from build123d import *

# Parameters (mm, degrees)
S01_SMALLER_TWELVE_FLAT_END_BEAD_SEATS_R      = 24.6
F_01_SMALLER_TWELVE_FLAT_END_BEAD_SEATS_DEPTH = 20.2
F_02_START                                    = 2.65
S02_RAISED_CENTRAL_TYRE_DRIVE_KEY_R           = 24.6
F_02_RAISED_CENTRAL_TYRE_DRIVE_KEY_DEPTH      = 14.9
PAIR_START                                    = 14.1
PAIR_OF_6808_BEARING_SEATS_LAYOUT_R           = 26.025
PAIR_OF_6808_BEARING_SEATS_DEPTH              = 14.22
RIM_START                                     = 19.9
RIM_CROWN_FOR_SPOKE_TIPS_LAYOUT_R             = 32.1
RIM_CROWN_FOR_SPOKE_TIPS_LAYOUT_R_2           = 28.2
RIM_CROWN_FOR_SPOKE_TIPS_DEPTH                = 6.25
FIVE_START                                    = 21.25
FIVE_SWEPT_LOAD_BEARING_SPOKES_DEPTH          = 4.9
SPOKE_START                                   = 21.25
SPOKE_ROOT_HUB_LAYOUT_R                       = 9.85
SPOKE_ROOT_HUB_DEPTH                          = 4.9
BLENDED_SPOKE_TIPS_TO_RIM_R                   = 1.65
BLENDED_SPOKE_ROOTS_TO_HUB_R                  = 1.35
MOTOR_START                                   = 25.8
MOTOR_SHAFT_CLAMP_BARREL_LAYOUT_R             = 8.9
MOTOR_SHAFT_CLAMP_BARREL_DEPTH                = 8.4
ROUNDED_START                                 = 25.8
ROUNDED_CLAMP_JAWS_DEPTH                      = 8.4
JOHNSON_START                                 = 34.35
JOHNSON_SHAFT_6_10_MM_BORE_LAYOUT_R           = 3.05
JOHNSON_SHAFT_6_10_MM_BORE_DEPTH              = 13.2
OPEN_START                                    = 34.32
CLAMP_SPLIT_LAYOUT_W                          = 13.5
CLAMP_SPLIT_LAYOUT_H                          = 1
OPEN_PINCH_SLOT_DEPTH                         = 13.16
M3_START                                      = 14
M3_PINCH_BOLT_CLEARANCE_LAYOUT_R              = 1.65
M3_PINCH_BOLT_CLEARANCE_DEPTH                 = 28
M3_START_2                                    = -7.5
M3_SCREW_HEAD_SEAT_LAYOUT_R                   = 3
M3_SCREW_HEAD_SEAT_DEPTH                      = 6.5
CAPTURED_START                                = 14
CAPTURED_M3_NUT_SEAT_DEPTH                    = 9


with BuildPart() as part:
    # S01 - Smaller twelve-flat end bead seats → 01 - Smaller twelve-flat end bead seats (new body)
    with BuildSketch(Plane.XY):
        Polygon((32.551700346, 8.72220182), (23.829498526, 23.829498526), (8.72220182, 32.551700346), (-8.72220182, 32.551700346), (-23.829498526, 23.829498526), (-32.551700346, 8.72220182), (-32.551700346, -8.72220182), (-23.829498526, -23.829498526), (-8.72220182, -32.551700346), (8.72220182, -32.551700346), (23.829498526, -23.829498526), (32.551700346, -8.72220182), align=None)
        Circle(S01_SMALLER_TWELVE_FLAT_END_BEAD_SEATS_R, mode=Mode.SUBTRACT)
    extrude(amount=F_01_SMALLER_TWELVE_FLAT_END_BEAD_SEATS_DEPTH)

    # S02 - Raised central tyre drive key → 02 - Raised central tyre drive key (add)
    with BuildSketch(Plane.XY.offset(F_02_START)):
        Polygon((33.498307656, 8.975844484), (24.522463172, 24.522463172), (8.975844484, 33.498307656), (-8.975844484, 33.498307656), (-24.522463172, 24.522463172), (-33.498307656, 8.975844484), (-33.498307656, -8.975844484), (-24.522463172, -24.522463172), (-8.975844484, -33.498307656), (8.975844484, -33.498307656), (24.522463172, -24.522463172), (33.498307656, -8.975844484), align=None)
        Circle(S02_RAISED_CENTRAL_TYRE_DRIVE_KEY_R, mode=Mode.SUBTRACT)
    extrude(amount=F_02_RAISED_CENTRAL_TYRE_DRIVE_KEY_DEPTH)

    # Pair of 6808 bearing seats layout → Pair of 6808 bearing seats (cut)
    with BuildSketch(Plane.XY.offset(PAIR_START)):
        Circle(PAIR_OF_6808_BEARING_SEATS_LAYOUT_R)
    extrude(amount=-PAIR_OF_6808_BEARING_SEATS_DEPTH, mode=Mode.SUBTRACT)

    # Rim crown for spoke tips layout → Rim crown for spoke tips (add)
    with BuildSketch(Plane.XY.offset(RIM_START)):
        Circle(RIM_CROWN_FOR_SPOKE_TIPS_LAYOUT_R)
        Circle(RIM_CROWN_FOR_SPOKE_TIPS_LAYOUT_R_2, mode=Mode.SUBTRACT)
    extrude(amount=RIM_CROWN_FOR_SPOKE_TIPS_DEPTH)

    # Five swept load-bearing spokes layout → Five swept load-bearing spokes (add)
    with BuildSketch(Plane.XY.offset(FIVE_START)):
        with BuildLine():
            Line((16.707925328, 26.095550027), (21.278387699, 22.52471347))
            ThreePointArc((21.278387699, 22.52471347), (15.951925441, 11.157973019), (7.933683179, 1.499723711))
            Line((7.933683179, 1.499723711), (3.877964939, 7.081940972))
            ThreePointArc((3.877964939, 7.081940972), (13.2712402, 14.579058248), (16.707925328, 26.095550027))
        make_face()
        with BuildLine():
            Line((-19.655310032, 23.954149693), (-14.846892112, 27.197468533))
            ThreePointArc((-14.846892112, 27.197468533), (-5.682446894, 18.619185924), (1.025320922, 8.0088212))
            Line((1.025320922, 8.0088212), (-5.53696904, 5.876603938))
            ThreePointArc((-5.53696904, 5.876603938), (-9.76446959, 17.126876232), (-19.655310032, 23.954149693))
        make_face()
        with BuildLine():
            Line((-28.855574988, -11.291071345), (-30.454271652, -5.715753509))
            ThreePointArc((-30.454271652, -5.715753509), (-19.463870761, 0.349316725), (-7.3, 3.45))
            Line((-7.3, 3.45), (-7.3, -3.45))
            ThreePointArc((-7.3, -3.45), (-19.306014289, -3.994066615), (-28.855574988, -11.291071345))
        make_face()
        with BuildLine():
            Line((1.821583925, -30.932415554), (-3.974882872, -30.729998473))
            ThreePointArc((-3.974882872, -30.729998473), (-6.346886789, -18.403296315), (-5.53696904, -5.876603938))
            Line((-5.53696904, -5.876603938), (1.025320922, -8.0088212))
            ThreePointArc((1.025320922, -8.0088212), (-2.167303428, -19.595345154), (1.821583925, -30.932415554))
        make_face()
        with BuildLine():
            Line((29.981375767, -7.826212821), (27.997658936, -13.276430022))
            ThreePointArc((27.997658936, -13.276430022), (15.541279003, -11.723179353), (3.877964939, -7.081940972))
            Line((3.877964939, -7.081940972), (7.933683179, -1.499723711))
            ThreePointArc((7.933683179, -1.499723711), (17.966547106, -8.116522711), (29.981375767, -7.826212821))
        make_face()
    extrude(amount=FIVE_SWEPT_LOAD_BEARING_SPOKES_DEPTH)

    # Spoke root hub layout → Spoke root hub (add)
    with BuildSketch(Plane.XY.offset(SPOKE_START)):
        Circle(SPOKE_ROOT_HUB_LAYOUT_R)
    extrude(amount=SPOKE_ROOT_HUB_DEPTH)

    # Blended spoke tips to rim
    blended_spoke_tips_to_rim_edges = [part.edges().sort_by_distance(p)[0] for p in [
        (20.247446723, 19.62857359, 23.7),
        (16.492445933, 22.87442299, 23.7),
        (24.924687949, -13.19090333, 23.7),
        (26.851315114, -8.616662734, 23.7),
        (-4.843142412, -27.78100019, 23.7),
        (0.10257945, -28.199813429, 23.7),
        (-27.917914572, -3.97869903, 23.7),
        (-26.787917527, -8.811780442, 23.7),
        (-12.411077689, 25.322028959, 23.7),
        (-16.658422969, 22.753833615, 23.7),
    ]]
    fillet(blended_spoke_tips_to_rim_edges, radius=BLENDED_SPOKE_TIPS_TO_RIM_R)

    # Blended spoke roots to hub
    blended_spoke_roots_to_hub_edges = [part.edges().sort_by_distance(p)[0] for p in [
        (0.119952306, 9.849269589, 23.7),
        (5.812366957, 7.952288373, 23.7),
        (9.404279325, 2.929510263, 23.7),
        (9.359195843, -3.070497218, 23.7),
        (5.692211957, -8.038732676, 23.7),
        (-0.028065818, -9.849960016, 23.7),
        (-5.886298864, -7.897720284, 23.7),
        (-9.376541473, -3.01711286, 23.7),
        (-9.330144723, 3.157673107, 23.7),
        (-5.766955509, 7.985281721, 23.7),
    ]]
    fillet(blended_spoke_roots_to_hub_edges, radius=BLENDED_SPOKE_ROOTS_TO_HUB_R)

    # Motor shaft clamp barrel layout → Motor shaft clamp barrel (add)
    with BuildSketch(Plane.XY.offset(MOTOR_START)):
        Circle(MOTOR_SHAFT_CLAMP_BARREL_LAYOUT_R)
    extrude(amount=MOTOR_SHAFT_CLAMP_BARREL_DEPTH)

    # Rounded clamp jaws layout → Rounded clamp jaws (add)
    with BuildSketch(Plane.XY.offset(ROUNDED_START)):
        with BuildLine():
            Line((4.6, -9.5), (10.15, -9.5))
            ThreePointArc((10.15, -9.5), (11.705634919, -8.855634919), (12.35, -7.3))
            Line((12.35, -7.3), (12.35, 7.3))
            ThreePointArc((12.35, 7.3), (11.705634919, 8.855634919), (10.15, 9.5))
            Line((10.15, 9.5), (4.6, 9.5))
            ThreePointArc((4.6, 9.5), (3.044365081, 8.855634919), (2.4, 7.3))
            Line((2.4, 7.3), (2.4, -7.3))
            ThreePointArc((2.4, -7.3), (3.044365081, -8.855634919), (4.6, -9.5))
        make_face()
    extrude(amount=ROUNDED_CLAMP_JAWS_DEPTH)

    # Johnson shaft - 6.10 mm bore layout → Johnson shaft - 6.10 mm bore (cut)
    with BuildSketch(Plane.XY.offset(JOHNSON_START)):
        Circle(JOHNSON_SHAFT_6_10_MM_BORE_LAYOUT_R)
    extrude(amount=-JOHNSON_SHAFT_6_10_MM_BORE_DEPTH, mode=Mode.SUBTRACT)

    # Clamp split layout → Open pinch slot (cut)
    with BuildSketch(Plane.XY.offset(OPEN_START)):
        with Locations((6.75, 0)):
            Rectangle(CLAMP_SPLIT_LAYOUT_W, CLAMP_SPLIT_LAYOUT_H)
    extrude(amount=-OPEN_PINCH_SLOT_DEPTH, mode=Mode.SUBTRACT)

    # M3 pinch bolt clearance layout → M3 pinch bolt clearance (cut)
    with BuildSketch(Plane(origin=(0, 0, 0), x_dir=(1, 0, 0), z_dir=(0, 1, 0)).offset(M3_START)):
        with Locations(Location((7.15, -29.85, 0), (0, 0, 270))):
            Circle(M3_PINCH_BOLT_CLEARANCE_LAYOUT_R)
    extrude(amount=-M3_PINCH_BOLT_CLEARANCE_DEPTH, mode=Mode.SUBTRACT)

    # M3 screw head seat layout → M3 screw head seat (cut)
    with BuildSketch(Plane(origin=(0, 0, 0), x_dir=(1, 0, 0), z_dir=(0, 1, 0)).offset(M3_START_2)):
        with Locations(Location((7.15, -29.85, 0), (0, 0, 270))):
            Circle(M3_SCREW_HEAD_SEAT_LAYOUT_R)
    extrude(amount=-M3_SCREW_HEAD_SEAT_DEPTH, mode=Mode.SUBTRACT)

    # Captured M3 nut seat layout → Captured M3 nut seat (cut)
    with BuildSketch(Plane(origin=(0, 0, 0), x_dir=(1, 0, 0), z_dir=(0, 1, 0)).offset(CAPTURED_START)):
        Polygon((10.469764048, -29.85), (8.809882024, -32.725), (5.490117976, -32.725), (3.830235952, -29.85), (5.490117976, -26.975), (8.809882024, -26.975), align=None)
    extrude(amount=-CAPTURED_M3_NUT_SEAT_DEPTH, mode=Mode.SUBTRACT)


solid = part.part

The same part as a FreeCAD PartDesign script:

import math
import FreeCAD as App
import Part
import Sketcher

V = App.Vector
Q = App.Units.Quantity


def edges_at(feature, points):
    """Names of the edges that pass closest to the given points."""
    edges = feature.Shape.Edges
    near = lambda p: min(range(len(edges)), key=lambda i: edges[i].distToShape(Part.Vertex(*p))[0])
    return sorted({f"Edge{near(p) + 1}" for p in points})


def add_polygon(sketch, points):
    """Adds a closed chain of lines whose ends are joined by coincident constraints."""
    first, n = sketch.GeometryCount, len(points)
    for a, b in zip(points, points[1:] + points[:1]):
        sketch.addGeometry(Part.LineSegment(App.Vector(*a, 0), App.Vector(*b, 0)), False)
    for i in range(n):
        sketch.addConstraint(Sketcher.Constraint("Coincident", first + i, 2, first + (i + 1) % n, 1))

doc = App.newDocument("Part")
body = doc.addObject("PartDesign::Body", "Body")

sketch1 = body.newObject("Sketcher::SketchObject", "Sketch")
sketch1.AttachmentSupport = (doc.getObject("XY_Plane"), [""])
sketch1.MapMode = "FlatFace"
add_polygon(sketch1, [(32.5517, 8.722202), (23.829499, 23.829499), (8.722202, 32.5517), (-8.722202, 32.5517), (-23.829499, 23.829499), (-32.5517, 8.722202), (-32.5517, -8.722202), (-23.829499, -23.829499), (-8.722202, -32.5517), (8.722202, -32.5517), (23.829499, -23.829499), (32.5517, -8.722202)])
sketch1.addGeometry(Part.Circle(V(0, 0, 0), V(0, 0, 1), 24.6), False)
sketch1.addConstraint(Sketcher.Constraint("Horizontal", 2))
sketch1.addConstraint(Sketcher.Constraint("Vertical", 5))
sketch1.addConstraint(Sketcher.Constraint("Horizontal", 8))
sketch1.addConstraint(Sketcher.Constraint("Vertical", 11))
sketch1.addConstraint(Sketcher.Constraint("Coincident", 12, 3, -1, 1))
sketch1.addConstraint(Sketcher.Constraint("Symmetric", 0, 2, 6, 2, -1, 1))
sketch1.addConstraint(Sketcher.Constraint("Symmetric", 1, 2, 7, 2, -1, 1))
sketch1.addConstraint(Sketcher.Constraint("Symmetric", 3, 2, 9, 2, -1, 1))
sketch1.addConstraint(Sketcher.Constraint("Symmetric", 4, 2, 10, 2, -1, 1))
sketch1.addConstraint(Sketcher.Constraint("Symmetric", 0, 2, 3, 2, -2))
sketch1.addConstraint(Sketcher.Constraint("Perpendicular", 0, 3))
sketch1.addConstraint(Sketcher.Constraint("Perpendicular", 1, 4))
sketch1.addConstraint(Sketcher.Constraint("Perpendicular", 3, 6))
sketch1.addConstraint(Sketcher.Constraint("Perpendicular", 6, 9))
sketch1.addConstraint(Sketcher.Constraint("Horizontal", 5, 2, 10, 2))
sketch1.addConstraint(Sketcher.Constraint("Equal", 8, 5))
sketch1.addConstraint(Sketcher.Constraint("Equal", 0, 1))
sketch1.addConstraint(Sketcher.Constraint("Diameter", 12, Q("49.2 mm")))
sketch1.addConstraint(Sketcher.Constraint("Angle", 0, Q("120 deg")))
sketch1.addConstraint(Sketcher.Constraint("DistanceX", -1, 1, 0, 2, Q("23.829499 mm")))
sketch1.addConstraint(Sketcher.Constraint("DistanceX", -1, 1, 1, 2, Q("8.722202 mm")))
pad1 = body.newObject("PartDesign::Pad", "Pad")
pad1.Profile = sketch1
pad1.Length = 20.2

sketch2 = body.newObject("Sketcher::SketchObject", "Sketch001")
sketch2.AttachmentSupport = (doc.getObject("XY_Plane"), [""])
sketch2.MapMode = "FlatFace"
sketch2.AttachmentOffset = App.Placement(V(0, 0, 2.65), App.Rotation())
add_polygon(sketch2, [(33.498308, 8.975844), (24.522463, 24.522463), (8.975844, 33.498308), (-8.975844, 33.498308), (-24.522463, 24.522463), (-33.498308, 8.975844), (-33.498308, -8.975844), (-24.522463, -24.522463), (-8.975844, -33.498308), (8.975844, -33.498308), (24.522463, -24.522463), (33.498308, -8.975844)])
sketch2.addGeometry(Part.Circle(V(0, 0, 0), V(0, 0, 1), 24.6), False)
sketch2.addConstraint(Sketcher.Constraint("Horizontal", 2))
sketch2.addConstraint(Sketcher.Constraint("Vertical", 5))
sketch2.addConstraint(Sketcher.Constraint("Horizontal", 8))
sketch2.addConstraint(Sketcher.Constraint("Vertical", 11))
sketch2.addConstraint(Sketcher.Constraint("Coincident", 12, 3, -1, 1))
sketch2.addConstraint(Sketcher.Constraint("Symmetric", 0, 2, 6, 2, -1, 1))
sketch2.addConstraint(Sketcher.Constraint("Symmetric", 1, 2, 7, 2, -1, 1))
sketch2.addConstraint(Sketcher.Constraint("Symmetric", 3, 2, 9, 2, -1, 1))
sketch2.addConstraint(Sketcher.Constraint("Symmetric", 4, 2, 10, 2, -1, 1))
sketch2.addConstraint(Sketcher.Constraint("Symmetric", 0, 2, 3, 2, -2))
sketch2.addConstraint(Sketcher.Constraint("Perpendicular", 0, 3))
sketch2.addConstraint(Sketcher.Constraint("Perpendicular", 1, 4))
sketch2.addConstraint(Sketcher.Constraint("Perpendicular", 3, 6))
sketch2.addConstraint(Sketcher.Constraint("Perpendicular", 6, 9))
sketch2.addConstraint(Sketcher.Constraint("Horizontal", 5, 2, 10, 2))
sketch2.addConstraint(Sketcher.Constraint("Equal", 8, 5))
sketch2.addConstraint(Sketcher.Constraint("Equal", 0, 1))
sketch2.addConstraint(Sketcher.Constraint("Diameter", 12, Q("49.2 mm")))
sketch2.addConstraint(Sketcher.Constraint("Angle", 0, Q("120 deg")))
sketch2.addConstraint(Sketcher.Constraint("DistanceX", 2, 2, 2, 1, Q("17.951689 mm")))
sketch2.addConstraint(Sketcher.Constraint("Distance", 0, Q("17.951689 mm")))
pad2 = body.newObject("PartDesign::Pad", "Pad001")
pad2.Profile = sketch2
pad2.Length = 14.9

sketch3 = body.newObject("Sketcher::SketchObject", "Sketch002")
sketch3.AttachmentSupport = (doc.getObject("XY_Plane"), [""])
sketch3.MapMode = "FlatFace"
sketch3.AttachmentOffset = App.Placement(V(0, 0, 14.1), App.Rotation())
sketch3.addGeometry(Part.Circle(V(0, 0, 0), V(0, 0, 1), 26.025), False)
sketch3.addConstraint(Sketcher.Constraint("Coincident", 0, 3, -1, 1))
sketch3.addConstraint(Sketcher.Constraint("Diameter", 0, Q("52.05 mm")))
pocket1 = body.newObject("PartDesign::Pocket", "Pocket")
pocket1.Profile = sketch3
pocket1.Length = 14.22

sketch4 = body.newObject("Sketcher::SketchObject", "Sketch003")
sketch4.AttachmentSupport = (doc.getObject("XY_Plane"), [""])
sketch4.MapMode = "FlatFace"
sketch4.AttachmentOffset = App.Placement(V(0, 0, 19.9), App.Rotation())
sketch4.addGeometry(Part.Circle(V(0, 0, 0), V(0, 0, 1), 32.1), False)
sketch4.addGeometry(Part.Circle(V(0, 0, 0), V(0, 0, 1), 28.2), False)
sketch4.addConstraint(Sketcher.Constraint("Coincident", 0, 3, -1, 1))
sketch4.addConstraint(Sketcher.Constraint("Coincident", 1, 3, -1, 1))
sketch4.addConstraint(Sketcher.Constraint("Diameter", 0, Q("64.2 mm")))
sketch4.addConstraint(Sketcher.Constraint("Diameter", 1, Q("56.4 mm")))
pad3 = body.newObject("PartDesign::Pad", "Pad002")
pad3.Profile = sketch4
pad3.Length = 6.25

sketch5 = body.newObject("Sketcher::SketchObject", "Sketch004")
sketch5.AttachmentSupport = (doc.getObject("XY_Plane"), [""])
sketch5.MapMode = "FlatFace"
sketch5.AttachmentOffset = App.Placement(V(0, 0, 21.25), App.Rotation())
sketch5.addGeometry(Part.LineSegment(V(21.278388, 22.524713, 0), V(16.707925, 26.09555, 0)), False)
sketch5.addGeometry(Part.ArcOfCircle(Part.Circle(V(-3.390906, 25.822304, 0), V(0, 0, 1), 20.100688), math.radians(-68.800098), math.radians(0.778896)), False)
sketch5.addGeometry(Part.LineSegment(V(3.877965, 7.081941, 0), V(7.933683, 1.499724, 0)), False)
sketch5.addGeometry(Part.ArcOfCircle(Part.Circle(V(-25.776584, 37.643343, 0), V(0, 0, 1), 49.424117), math.radians(-46.995085), math.radians(-17.812065)), False)
sketch5.addGeometry(Part.LineSegment(V(-14.846892, 27.197469, 0), V(-19.65531, 23.95415, 0)), False)
sketch5.addGeometry(Part.ArcOfCircle(Part.Circle(V(-25.606318, 4.754588, 0), V(0, 0, 1), 20.100688), math.radians(3.199902), math.radians(72.778896)), False)
sketch5.addGeometry(Part.LineSegment(V(-5.536969, 5.876604, 0), V(1.025321, 8.008821, 0)), False)
sketch5.addGeometry(Part.ArcOfCircle(Part.Circle(V(-43.766349, -12.882556, 0), V(0, 0, 1), 49.424117), math.radians(25.004915), math.radians(54.187935)), False)
sketch5.addGeometry(Part.LineSegment(V(-30.454272, -5.715754, 0), V(-28.855575, -11.291071, 0)), False)
sketch5.addGeometry(Part.ArcOfCircle(Part.Circle(V(-12.434669, -22.883807, 0), V(0, 0, 1), 20.100688), math.radians(75.199902), math.radians(144.778896)), False)
sketch5.addGeometry(Part.LineSegment(V(-7.3, -3.45, 0), V(-7.3, 3.45, 0)), False)
sketch5.addGeometry(Part.ArcOfCircle(Part.Circle(V(-1.272507, -45.6052, 0), V(0, 0, 1), 49.424117), math.radians(97.004915), math.radians(126.187935)), False)
sketch5.addGeometry(Part.LineSegment(V(-3.974883, -30.729998, 0), V(1.821584, -30.932416, 0)), False)
sketch5.addGeometry(Part.ArcOfCircle(Part.Circle(V(17.92127, -18.897558, 0), V(0, 0, 1), 20.100688), math.radians(147.199902), math.radians(216.778896)), False)
sketch5.addGeometry(Part.LineSegment(V(1.025321, -8.008821, 0), V(-5.536969, -5.876604, 0)), False)
sketch5.addGeometry(Part.ArcOfCircle(Part.Circle(V(42.979897, -15.303008, 0), V(0, 0, 1), 49.424117), math.radians(169.004915), math.radians(198.187935)), False)
sketch5.addGeometry(Part.LineSegment(V(27.997659, -13.27643, 0), V(29.981376, -7.826213, 0)), False)
sketch5.addGeometry(Part.ArcOfCircle(Part.Circle(V(23.510623, 11.204474, 0), V(0, 0, 1), 20.100688), math.radians(-140.800098), math.radians(-71.221104)), False)
sketch5.addGeometry(Part.LineSegment(V(7.933683, -1.499724, 0), V(3.877965, -7.081941, 0)), False)
sketch5.addGeometry(Part.ArcOfCircle(Part.Circle(V(27.835544, 36.147421, 0), V(0, 0, 1), 49.424117), math.radians(-118.995085), math.radians(-89.812065)), False)
sketch5.addConstraint(Sketcher.Constraint("Coincident", 0, 2, 1, 2))
sketch5.addConstraint(Sketcher.Constraint("Coincident", 1, 1, 2, 1))
sketch5.addConstraint(Sketcher.Constraint("Coincident", 2, 2, 3, 1))
sketch5.addConstraint(Sketcher.Constraint("Coincident", 3, 2, 0, 1))
sketch5.addConstraint(Sketcher.Constraint("Coincident", 4, 2, 5, 2))
sketch5.addConstraint(Sketcher.Constraint("Coincident", 5, 1, 6, 1))
sketch5.addConstraint(Sketcher.Constraint("Coincident", 6, 2, 7, 1))
sketch5.addConstraint(Sketcher.Constraint("Coincident", 7, 2, 4, 1))
sketch5.addConstraint(Sketcher.Constraint("Coincident", 8, 2, 9, 2))
sketch5.addConstraint(Sketcher.Constraint("Coincident", 9, 1, 10, 1))
sketch5.addConstraint(Sketcher.Constraint("Coincident", 10, 2, 11, 1))
sketch5.addConstraint(Sketcher.Constraint("Coincident", 11, 2, 8, 1))
sketch5.addConstraint(Sketcher.Constraint("Coincident", 12, 2, 13, 2))
sketch5.addConstraint(Sketcher.Constraint("Coincident", 13, 1, 14, 1))
sketch5.addConstraint(Sketcher.Constraint("Coincident", 14, 2, 15, 1))
sketch5.addConstraint(Sketcher.Constraint("Coincident", 15, 2, 12, 1))
sketch5.addConstraint(Sketcher.Constraint("Coincident", 16, 2, 17, 2))
sketch5.addConstraint(Sketcher.Constraint("Coincident", 17, 1, 18, 1))
sketch5.addConstraint(Sketcher.Constraint("Coincident", 18, 2, 19, 1))
sketch5.addConstraint(Sketcher.Constraint("Coincident", 19, 2, 16, 1))
sketch5.addConstraint(Sketcher.Constraint("Vertical", 10))
sketch5.addConstraint(Sketcher.Constraint("Equal", 1, 5))
sketch5.addConstraint(Sketcher.Constraint("Equal", 3, 7))
sketch5.addConstraint(Sketcher.Constraint("Equal", 5, 9))
sketch5.addConstraint(Sketcher.Constraint("Equal", 7, 11))
sketch5.addConstraint(Sketcher.Constraint("Equal", 9, 13))
sketch5.addConstraint(Sketcher.Constraint("Equal", 11, 15))
sketch5.addConstraint(Sketcher.Constraint("Equal", 13, 17))
sketch5.addConstraint(Sketcher.Constraint("Equal", 15, 19))
sketch5.addConstraint(Sketcher.Constraint("Symmetric", 6, 2, 13, 1, -1))
sketch5.addConstraint(Sketcher.Constraint("Symmetric", 5, 1, 14, 2, -1))
sketch5.addConstraint(Sketcher.Constraint("Symmetric", 2, 2, 17, 1, -1))
sketch5.addConstraint(Sketcher.Constraint("Symmetric", 1, 1, 18, 2, -1))
sketch5.addConstraint(Sketcher.Constraint("Equal", 0, 4))
sketch5.addConstraint(Sketcher.Constraint("Equal", 2, 6))
sketch5.addConstraint(Sketcher.Constraint("Equal", 4, 8))
sketch5.addConstraint(Sketcher.Constraint("Equal", 8, 12))
sketch5.addConstraint(Sketcher.Constraint("Equal", 12, 16))
sketch5.addConstraint(Sketcher.Constraint("Angle", 0, Q("142 deg")))
sketch5.addConstraint(Sketcher.Constraint("Angle", 2, Q("-54 deg")))
sketch5.addConstraint(Sketcher.Constraint("Angle", 4, Q("-146 deg")))
sketch5.addConstraint(Sketcher.Constraint("Angle", 6, Q("18 deg")))
sketch5.addConstraint(Sketcher.Constraint("Angle", 8, Q("-74 deg")))
sketch5.addConstraint(Sketcher.Constraint("Angle", 12, Q("-2 deg")))
sketch5.addConstraint(Sketcher.Constraint("Angle", 16, Q("70 deg")))
sketch5.addConstraint(Sketcher.Constraint("DistanceY", 10, 1, 10, 2, Q("6.9 mm")))
sketch5.addConstraint(Sketcher.Constraint("Distance", 0, Q("5.8 mm")))
sketch5.addConstraint(Sketcher.Constraint("Distance", 2, Q("6.9 mm")))
sketch5.addConstraint(Sketcher.Constraint("DistanceX", 9, 1, -1, 1, Q("7.3 mm")))
sketch5.addConstraint(Sketcher.Constraint("DistanceY", 9, 1, -1, 1, Q("3.45 mm")))
sketch5.addConstraint(Sketcher.Constraint("DistanceY", 15, 2, -1, 1, Q("30.729998 mm")))
sketch5.addConstraint(Sketcher.Constraint("Radius", 1, Q("20.100688 mm")))
sketch5.addConstraint(Sketcher.Constraint("Radius", 3, Q("49.424117 mm")))
sketch5.addConstraint(Sketcher.Constraint("DistanceY", 11, 3, -1, 1, Q("45.6052 mm")))
sketch5.addConstraint(Sketcher.Constraint("DistanceY", 7, 3, 3, 3, Q("50.525899 mm")))
sketch5.addConstraint(Sketcher.Constraint("DistanceX", 1, 3, 11, 3, Q("2.118399 mm")))
sketch5.addConstraint(Sketcher.Constraint("DistanceY", 9, 3, 15, 3, Q("7.580799 mm")))
sketch5.addConstraint(Sketcher.Constraint("DistanceY", 13, 3, 1, 1, Q("25.979499 mm")))
sketch5.addConstraint(Sketcher.Constraint("DistanceY", 5, 1, 1, 3, Q("19.9457 mm")))
sketch5.addConstraint(Sketcher.Constraint("DistanceX", 6, 2, 17, 3, Q("22.485302 mm")))
sketch5.addConstraint(Sketcher.Constraint("DistanceX", 12, 2, 2, 2, Q("6.112099 mm")))
sketch5.addConstraint(Sketcher.Constraint("DistanceX", 7, 3, -1, 1, Q("43.766349 mm")))
sketch5.addConstraint(Sketcher.Constraint("DistanceX", 9, 3, -1, 1, Q("12.434669 mm")))
sketch5.addConstraint(Sketcher.Constraint("DistanceX", -1, 1, 13, 3, Q("17.92127 mm")))
sketch5.addConstraint(Sketcher.Constraint("DistanceY", -1, 1, 19, 3, Q("36.147421 mm")))
sketch5.addConstraint(Sketcher.Constraint("DistanceX", 4, 2, -1, 1, Q("19.65531 mm")))
pad4 = body.newObject("PartDesign::Pad", "Pad003")
pad4.Profile = sketch5
pad4.Length = 4.9

sketch6 = body.newObject("Sketcher::SketchObject", "Sketch005")
sketch6.AttachmentSupport = (doc.getObject("XY_Plane"), [""])
sketch6.MapMode = "FlatFace"
sketch6.AttachmentOffset = App.Placement(V(0, 0, 21.25), App.Rotation())
sketch6.addGeometry(Part.Circle(V(0, 0, 0), V(0, 0, 1), 9.85), False)
sketch6.addConstraint(Sketcher.Constraint("Coincident", 0, 3, -1, 1))
sketch6.addConstraint(Sketcher.Constraint("Diameter", 0, Q("19.7 mm")))
pad5 = body.newObject("PartDesign::Pad", "Pad004")
pad5.Profile = sketch6
pad5.Length = 4.9
doc.recompute()

fillet = body.newObject("PartDesign::Fillet", "Fillet")
fillet.Base = (pad5, edges_at(pad5, [
    (20.247, 19.629, 23.7),
    (16.492, 22.874, 23.7),
    (24.925, -13.191, 23.7),
    (26.851, -8.617, 23.7),
    (-4.843, -27.781, 23.7),
    (0.103, -28.2, 23.7),
    (-27.918, -3.979, 23.7),
    (-26.788, -8.812, 23.7),
    (-12.411, 25.322, 23.7),
    (-16.658, 22.754, 23.7),
]))
fillet.Radius = 1.65
doc.recompute()

fillet2 = body.newObject("PartDesign::Fillet", "Fillet001")
fillet2.Base = (fillet, edges_at(fillet, [
    (0.12, 9.849, 23.7),
    (5.812, 7.952, 23.7),
    (9.404, 2.93, 23.7),
    (9.359, -3.07, 23.7),
    (5.692, -8.039, 23.7),
    (-0.028, -9.85, 23.7),
    (-5.886, -7.898, 23.7),
    (-9.377, -3.017, 23.7),
    (-9.33, 3.158, 23.7),
    (-5.767, 7.985, 23.7),
]))
fillet2.Radius = 1.35

sketch7 = body.newObject("Sketcher::SketchObject", "Sketch006")
sketch7.AttachmentSupport = (doc.getObject("XY_Plane"), [""])
sketch7.MapMode = "FlatFace"
sketch7.AttachmentOffset = App.Placement(V(0, 0, 25.8), App.Rotation())
sketch7.addGeometry(Part.Circle(V(0, 0, 0), V(0, 0, 1), 8.9), False)
sketch7.addConstraint(Sketcher.Constraint("Coincident", 0, 3, -1, 1))
sketch7.addConstraint(Sketcher.Constraint("Diameter", 0, Q("17.8 mm")))
pad6 = body.newObject("PartDesign::Pad", "Pad005")
pad6.Profile = sketch7
pad6.Length = 8.4

sketch8 = body.newObject("Sketcher::SketchObject", "Sketch007")
sketch8.AttachmentSupport = (doc.getObject("XY_Plane"), [""])
sketch8.MapMode = "FlatFace"
sketch8.AttachmentOffset = App.Placement(V(0, 0, 25.8), App.Rotation())
sketch8.addGeometry(Part.LineSegment(V(4.6, -9.5, 0), V(10.15, -9.5, 0)), False)
sketch8.addGeometry(Part.ArcOfCircle(Part.Circle(V(10.15, -7.3, 0), V(0, 0, 1), 2.2), math.radians(-90), math.radians(0)), False)
sketch8.addGeometry(Part.LineSegment(V(12.35, -7.3, 0), V(12.35, 7.3, 0)), False)
sketch8.addGeometry(Part.ArcOfCircle(Part.Circle(V(10.15, 7.3, 0), V(0, 0, 1), 2.2), math.radians(0), math.radians(90)), False)
sketch8.addGeometry(Part.LineSegment(V(10.15, 9.5, 0), V(4.6, 9.5, 0)), False)
sketch8.addGeometry(Part.ArcOfCircle(Part.Circle(V(4.6, 7.3, 0), V(0, 0, 1), 2.2), math.radians(90), math.radians(180)), False)
sketch8.addGeometry(Part.LineSegment(V(2.4, 7.3, 0), V(2.4, -7.3, 0)), False)
sketch8.addGeometry(Part.ArcOfCircle(Part.Circle(V(4.6, -7.3, 0), V(0, 0, 1), 2.2), math.radians(180), math.radians(270)), False)
sketch8.addConstraint(Sketcher.Constraint("Tangent", 0, 2, 1, 1))
sketch8.addConstraint(Sketcher.Constraint("Tangent", 1, 2, 2, 1))
sketch8.addConstraint(Sketcher.Constraint("Tangent", 2, 2, 3, 1))
sketch8.addConstraint(Sketcher.Constraint("Tangent", 3, 2, 4, 1))
sketch8.addConstraint(Sketcher.Constraint("Tangent", 4, 2, 5, 1))
sketch8.addConstraint(Sketcher.Constraint("Tangent", 5, 2, 6, 1))
sketch8.addConstraint(Sketcher.Constraint("Tangent", 6, 2, 7, 1))
sketch8.addConstraint(Sketcher.Constraint("Tangent", 7, 2, 0, 1))
sketch8.addConstraint(Sketcher.Constraint("Horizontal", 0))
sketch8.addConstraint(Sketcher.Constraint("Vertical", 2))
sketch8.addConstraint(Sketcher.Constraint("Horizontal", 4))
sketch8.addConstraint(Sketcher.Constraint("Vertical", 6))
sketch8.addConstraint(Sketcher.Constraint("Equal", 1, 3))
sketch8.addConstraint(Sketcher.Constraint("Equal", 3, 5))
sketch8.addConstraint(Sketcher.Constraint("Equal", 5, 7))
sketch8.addConstraint(Sketcher.Constraint("Radius", 1, Q("2.2 mm")))
sketch8.addConstraint(Sketcher.Constraint("DistanceY", 2, 1, 2, 2, Q("14.6 mm")))
sketch8.addConstraint(Sketcher.Constraint("DistanceX", 0, 1, 0, 2, Q("5.55 mm")))
sketch8.addConstraint(Sketcher.Constraint("DistanceY", 1, 3, -1, 1, Q("7.3 mm")))
sketch8.addConstraint(Sketcher.Constraint("DistanceX", -1, 1, 5, 3, Q("4.6 mm")))
pad7 = body.newObject("PartDesign::Pad", "Pad006")
pad7.Profile = sketch8
pad7.Length = 8.4

sketch9 = body.newObject("Sketcher::SketchObject", "Sketch008")
sketch9.AttachmentSupport = (doc.getObject("XY_Plane"), [""])
sketch9.MapMode = "FlatFace"
sketch9.AttachmentOffset = App.Placement(V(0, 0, 34.35), App.Rotation())
sketch9.addGeometry(Part.Circle(V(0, 0, 0), V(0, 0, 1), 3.05), False)
sketch9.addConstraint(Sketcher.Constraint("Coincident", 0, 3, -1, 1))
sketch9.addConstraint(Sketcher.Constraint("Diameter", 0, Q("6.1 mm")))
pocket2 = body.newObject("PartDesign::Pocket", "Pocket001")
pocket2.Profile = sketch9
pocket2.Length = 13.2

sketch10 = body.newObject("Sketcher::SketchObject", "Sketch009")
sketch10.AttachmentSupport = (doc.getObject("XY_Plane"), [""])
sketch10.MapMode = "FlatFace"
sketch10.AttachmentOffset = App.Placement(V(0, 0, 34.32), App.Rotation())
add_polygon(sketch10, [(0, 0.5), (0, -0.5), (13.5, -0.5), (13.5, 0.5)])
sketch10.addConstraint(Sketcher.Constraint("Vertical", 0))
sketch10.addConstraint(Sketcher.Constraint("Horizontal", 1))
sketch10.addConstraint(Sketcher.Constraint("Vertical", 2))
sketch10.addConstraint(Sketcher.Constraint("Horizontal", 3))
sketch10.addConstraint(Sketcher.Constraint("Symmetric", 0, 2, 3, 2, -1, 1))
sketch10.addConstraint(Sketcher.Constraint("DistanceY", 0, 2, 0, 1, Q("1 mm")))
sketch10.addConstraint(Sketcher.Constraint("DistanceX", 1, 1, 1, 2, Q("13.5 mm")))
pocket3 = body.newObject("PartDesign::Pocket", "Pocket002")
pocket3.Profile = sketch10
pocket3.Length = 13.16

sketch11 = body.newObject("Sketcher::SketchObject", "Sketch010")
sketch11.AttachmentSupport = (doc.getObject("XZ_Plane"), [""])
sketch11.MapMode = "FlatFace"
sketch11.AttachmentOffset = App.Placement(V(0, 0, -14), App.Rotation())
sketch11.addGeometry(Part.Circle(V(7.15, 29.85, 0), V(0, 0, 1), 1.65), False)
sketch11.addConstraint(Sketcher.Constraint("Diameter", 0, Q("3.3 mm")))
sketch11.addConstraint(Sketcher.Constraint("DistanceX", -1, 1, 0, 3, Q("7.15 mm")))
sketch11.addConstraint(Sketcher.Constraint("DistanceY", -1, 1, 0, 3, Q("29.85 mm")))
pocket4 = body.newObject("PartDesign::Pocket", "Pocket003")
pocket4.Profile = sketch11
pocket4.Length = 28
pocket4.Reversed = True

sketch12 = body.newObject("Sketcher::SketchObject", "Sketch011")
sketch12.AttachmentSupport = (doc.getObject("XZ_Plane"), [""])
sketch12.MapMode = "FlatFace"
sketch12.AttachmentOffset = App.Placement(V(0, 0, 7.5), App.Rotation())
sketch12.addGeometry(Part.Circle(V(7.15, 29.85, 0), V(0, 0, 1), 3), False)
sketch12.addConstraint(Sketcher.Constraint("Diameter", 0, Q("6 mm")))
sketch12.addConstraint(Sketcher.Constraint("DistanceX", -1, 1, 0, 3, Q("7.15 mm")))
sketch12.addConstraint(Sketcher.Constraint("DistanceY", -1, 1, 0, 3, Q("29.85 mm")))
pocket5 = body.newObject("PartDesign::Pocket", "Pocket004")
pocket5.Profile = sketch12
pocket5.Length = 6.5
pocket5.Reversed = True

sketch13 = body.newObject("Sketcher::SketchObject", "Sketch012")
sketch13.AttachmentSupport = (doc.getObject("XZ_Plane"), [""])
sketch13.MapMode = "FlatFace"
sketch13.AttachmentOffset = App.Placement(V(0, 0, -14), App.Rotation())
add_polygon(sketch13, [(8.809882, 32.725), (10.469764, 29.85), (8.809882, 26.975), (5.490118, 26.975), (3.830236, 29.85), (5.490118, 32.725)])
sketch13.addConstraint(Sketcher.Constraint("Horizontal", 2))
sketch13.addConstraint(Sketcher.Constraint("Horizontal", 5))
sketch13.addConstraint(Sketcher.Constraint("Parallel", 0, 3))
sketch13.addConstraint(Sketcher.Constraint("Parallel", 1, 4))
sketch13.addConstraint(Sketcher.Constraint("Horizontal", 0, 2, 3, 2))
sketch13.addConstraint(Sketcher.Constraint("Vertical", 2, 2, 4, 2))
sketch13.addConstraint(Sketcher.Constraint("Vertical", 1, 2, 5, 2))
sketch13.addConstraint(Sketcher.Constraint("Angle", 0, Q("-60 deg")))
sketch13.addConstraint(Sketcher.Constraint("DistanceY", -1, 1, 0, 2, Q("29.85 mm")))
sketch13.addConstraint(Sketcher.Constraint("DistanceY", 2, 2, 4, 2, Q("5.75 mm")))
sketch13.addConstraint(Sketcher.Constraint("DistanceX", 2, 2, 2, 1, Q("3.319764 mm")))
sketch13.addConstraint(Sketcher.Constraint("DistanceX", -1, 1, 0, 2, Q("10.469764 mm")))
pocket6 = body.newObject("PartDesign::Pocket", "Pocket005")
pocket6.Profile = sketch13
pocket6.Length = 9
pocket6.Reversed = True

doc.recompute()
